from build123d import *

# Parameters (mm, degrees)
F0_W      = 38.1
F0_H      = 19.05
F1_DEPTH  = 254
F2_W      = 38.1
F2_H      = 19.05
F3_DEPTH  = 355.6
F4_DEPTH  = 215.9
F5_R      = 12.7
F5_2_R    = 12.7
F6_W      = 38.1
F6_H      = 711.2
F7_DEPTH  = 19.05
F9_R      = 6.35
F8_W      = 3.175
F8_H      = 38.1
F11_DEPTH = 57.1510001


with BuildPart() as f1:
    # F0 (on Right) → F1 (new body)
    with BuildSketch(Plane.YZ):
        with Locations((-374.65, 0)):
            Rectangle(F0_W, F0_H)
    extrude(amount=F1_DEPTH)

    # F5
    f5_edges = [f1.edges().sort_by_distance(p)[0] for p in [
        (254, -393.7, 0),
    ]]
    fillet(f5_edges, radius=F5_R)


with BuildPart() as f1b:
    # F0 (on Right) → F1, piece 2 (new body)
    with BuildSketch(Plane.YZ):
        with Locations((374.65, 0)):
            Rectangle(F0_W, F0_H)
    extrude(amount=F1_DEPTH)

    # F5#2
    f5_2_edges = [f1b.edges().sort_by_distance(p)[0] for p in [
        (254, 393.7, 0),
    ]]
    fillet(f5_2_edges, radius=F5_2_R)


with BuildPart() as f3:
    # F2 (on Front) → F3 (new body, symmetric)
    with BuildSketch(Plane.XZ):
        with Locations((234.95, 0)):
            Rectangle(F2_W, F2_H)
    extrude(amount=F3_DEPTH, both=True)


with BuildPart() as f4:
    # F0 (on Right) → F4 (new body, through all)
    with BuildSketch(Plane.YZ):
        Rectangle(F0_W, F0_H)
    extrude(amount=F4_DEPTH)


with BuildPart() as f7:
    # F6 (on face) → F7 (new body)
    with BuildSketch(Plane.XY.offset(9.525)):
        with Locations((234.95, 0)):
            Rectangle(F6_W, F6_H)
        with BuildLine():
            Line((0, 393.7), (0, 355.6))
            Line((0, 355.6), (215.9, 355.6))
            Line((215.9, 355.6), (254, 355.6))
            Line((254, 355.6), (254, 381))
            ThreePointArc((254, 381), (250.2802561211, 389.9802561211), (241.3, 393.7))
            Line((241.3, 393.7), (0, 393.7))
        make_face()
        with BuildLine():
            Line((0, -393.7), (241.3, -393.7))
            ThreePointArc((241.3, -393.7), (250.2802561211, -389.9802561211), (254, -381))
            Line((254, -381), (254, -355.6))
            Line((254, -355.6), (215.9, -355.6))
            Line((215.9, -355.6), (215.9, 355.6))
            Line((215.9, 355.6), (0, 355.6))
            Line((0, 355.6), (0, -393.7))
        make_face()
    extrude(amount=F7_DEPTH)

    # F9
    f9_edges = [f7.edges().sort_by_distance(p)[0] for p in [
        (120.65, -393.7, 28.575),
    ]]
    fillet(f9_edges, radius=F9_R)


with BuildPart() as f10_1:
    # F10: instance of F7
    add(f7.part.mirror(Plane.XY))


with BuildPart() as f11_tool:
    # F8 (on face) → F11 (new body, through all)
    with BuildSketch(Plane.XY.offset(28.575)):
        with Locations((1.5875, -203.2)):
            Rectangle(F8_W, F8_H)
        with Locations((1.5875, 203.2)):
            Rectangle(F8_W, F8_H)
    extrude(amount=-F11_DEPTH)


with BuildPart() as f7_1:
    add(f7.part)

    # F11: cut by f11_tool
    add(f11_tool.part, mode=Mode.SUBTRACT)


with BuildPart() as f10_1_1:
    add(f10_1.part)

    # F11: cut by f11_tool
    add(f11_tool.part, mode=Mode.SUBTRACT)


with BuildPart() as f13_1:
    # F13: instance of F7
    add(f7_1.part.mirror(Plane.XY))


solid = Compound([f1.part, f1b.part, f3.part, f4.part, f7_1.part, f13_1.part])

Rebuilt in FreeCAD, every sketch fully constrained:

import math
import FreeCAD as App
import Part
import Sketcher
Q = App.Units.Quantity


def edges_at(feature, points):
    """Names of the edges that pass closest to the given points."""
    edges = feature.Shape.Edges
    near = lambda p: min(range(len(edges)), key=lambda i: edges[i].distToShape(Part.Vertex(*p))[0])
    return sorted({f"Edge{near(p) + 1}" for p in points})


def add_polygon(sketch, points):
    """Adds a closed chain of lines whose ends are joined by coincident constraints."""
    first, n = sketch.GeometryCount, len(points)
    for a, b in zip(points, points[1:] + points[:1]):
        sketch.addGeometry(Part.LineSegment(App.Vector(*a, 0), App.Vector(*b, 0)), False)
    for i in range(n):
        sketch.addConstraint(Sketcher.Constraint("Coincident", first + i, 2, first + (i + 1) % n, 1))

doc = App.newDocument("Part")
body = doc.addObject("PartDesign::Body", "Body")

sketch1 = doc.addObject("Sketcher::SketchObject", "Sketch")
body.addObject(sketch1)
sketch1.AttachmentSupport = (doc.YZ_Plane, [""])
sketch1.MapMode = "FlatFace"
add_polygon(sketch1, [(-393.7, 9.525), (-393.7, -9.525), (-355.6, -9.525), (-355.6, 9.525)])
sketch1.addConstraint(Sketcher.Constraint("Vertical", 0))
sketch1.addConstraint(Sketcher.Constraint("Horizontal", 1))
sketch1.addConstraint(Sketcher.Constraint("Vertical", 2))
sketch1.addConstraint(Sketcher.Constraint("Horizontal", 3))
sketch1.addConstraint(Sketcher.Constraint("DistanceX", 1, 1, 1, 2, Q("1.5 in")))
sketch1.addConstraint(Sketcher.Constraint("DistanceX", 1, 2, -1, 1, Q("14 in")))
sketch1.addConstraint(Sketcher.Constraint("DistanceY", 0, 2, 0, 1, Q("0.75 in")))
sketch1.addConstraint(Sketcher.Constraint("DistanceY", 0, 2, -1, 1, Q("0.375 in")))
pad1 = doc.addObject("PartDesign::Pad", "Pad")
body.addObject(pad1)
pad1.Profile = sketch1
pad1.Length = Q("10 in")
doc.recompute()

fillet = doc.addObject("PartDesign::Fillet", "Fillet")
body.addObject(fillet)
fillet.Base = (pad1, edges_at(pad1, [(254, -393.7, 0)]))
fillet.Radius = Q("0.5 in")
body2 = doc.addObject("PartDesign::Body", "Body001")

sketch2 = doc.addObject("Sketcher::SketchObject", "Sketch001")
body2.addObject(sketch2)
sketch2.AttachmentSupport = (doc.getObject("YZ_Plane001"), [""])
sketch2.MapMode = "FlatFace"
add_polygon(sketch2, [(355.6, 9.525), (355.6, -9.525), (393.7, -9.525), (393.7, 9.525)])
sketch2.addConstraint(Sketcher.Constraint("Vertical", 0))
sketch2.addConstraint(Sketcher.Constraint("Horizontal", 1))
sketch2.addConstraint(Sketcher.Constraint("Vertical", 2))
sketch2.addConstraint(Sketcher.Constraint("Horizontal", 3))
sketch2.addConstraint(Sketcher.Constraint("DistanceX", 1, 1, 1, 2, Q("1.5 in")))
sketch2.addConstraint(Sketcher.Constraint("DistanceX", -1, 1, 0, 2, Q("14 in")))
sketch2.addConstraint(Sketcher.Constraint("DistanceY", 0, 2, 0, 1, Q("0.75 in")))
sketch2.addConstraint(Sketcher.Constraint("DistanceY", 0, 2, -1, 1, Q("0.375 in")))
pad2 = doc.addObject("PartDesign::Pad", "Pad001")
body2.addObject(pad2)
pad2.Profile = sketch2
pad2.Length = Q("10 in")
doc.recompute()

fillet2 = doc.addObject("PartDesign::Fillet", "Fillet001")
body2.addObject(fillet2)
fillet2.Base = (pad2, edges_at(pad2, [(254, 393.7, 0)]))
fillet2.Radius = Q("0.5 in")
body3 = doc.addObject("PartDesign::Body", "Body002")

sketch3 = doc.addObject("Sketcher::SketchObject", "Sketch002")
body3.addObject(sketch3)
sketch3.AttachmentSupport = (doc.getObject("XZ_Plane002"), [""])
sketch3.MapMode = "FlatFace"
add_polygon(sketch3, [(215.9, 9.525), (215.9, -9.525), (254, -9.525), (254, 9.525)])
sketch3.addConstraint(Sketcher.Constraint("Vertical", 0))
sketch3.addConstraint(Sketcher.Constraint("Horizontal", 1))
sketch3.addConstraint(Sketcher.Constraint("Vertical", 2))
sketch3.addConstraint(Sketcher.Constraint("Horizontal", 3))
sketch3.addConstraint(Sketcher.Constraint("DistanceX", 1, 1, 1, 2, Q("1.5 in")))
sketch3.addConstraint(Sketcher.Constraint("DistanceX", -1, 1, 1, 2, Q("10 in")))
sketch3.addConstraint(Sketcher.Constraint("DistanceY", 0, 2, 0, 1, Q("0.75 in")))
sketch3.addConstraint(Sketcher.Constraint("DistanceY", 0, 2, -1, 1, Q("0.375 in")))
pad3 = doc.addObject("PartDesign::Pad", "Pad002")
body3.addObject(pad3)
pad3.Profile = sketch3
pad3.Length = Q("28 in")
pad3.Midplane = True
body4 = doc.addObject("PartDesign::Body", "Body003")

sketch4 = doc.addObject("Sketcher::SketchObject", "Sketch003")
body4.addObject(sketch4)
sketch4.AttachmentSupport = (doc.getObject("YZ_Plane003"), [""])
sketch4.MapMode = "FlatFace"
add_polygon(sketch4, [(-19.05, 9.525), (-19.05, -9.525), (19.05, -9.525), (19.05, 9.525)])
sketch4.addConstraint(Sketcher.Constraint("Vertical", 0))
sketch4.addConstraint(Sketcher.Constraint("Horizontal", 1))
sketch4.addConstraint(Sketcher.Constraint("Vertical", 2))
sketch4.addConstraint(Sketcher.Constraint("Horizontal", 3))
sketch4.addConstraint(Sketcher.Constraint("Symmetric", 0, 2, 2, 2, -1, 1))
sketch4.addConstraint(Sketcher.Constraint("DistanceX", 1, 1, 1, 2, Q("1.5 in")))
sketch4.addConstraint(Sketcher.Constraint("DistanceY", 0, 2, 0, 1, Q("0.75 in")))
pad4 = doc.addObject("PartDesign::Pad", "Pad003")
body4.addObject(pad4)
pad4.Profile = sketch4
pad4.Length = Q("8.5 in")
body5 = doc.addObject("PartDesign::Body", "Body004")

sketch5 = doc.addObject("Sketcher::SketchObject", "Sketch004")
body5.addObject(sketch5)
sketch5.AttachmentSupport = (doc.getObject("XY_Plane004"), [""])
sketch5.MapMode = "FlatFace"
sketch5.AttachmentOffset = App.Placement(App.Vector(0, 0, 0.375 * 25.4), App.Rotation())
sketch5.addGeometry(Part.ArcOfCircle(Part.Circle(App.Vector(241.3, 381, 0), App.Vector(0, 0, 1), 12.7), math.radians(0), math.radians(90)), False)
sketch5.addGeometry(Part.LineSegment(App.Vector(241.3, 393.7, 0), App.Vector(0, 393.7, 0)), False)
sketch5.addGeometry(Part.LineSegment(App.Vector(0, 393.7, 0), App.Vector(0, -393.7, 0)), False)
sketch5.addGeometry(Part.LineSegment(App.Vector(0, -393.7, 0), App.Vector(241.3, -393.7, 0)), False)
sketch5.addGeometry(Part.ArcOfCircle(Part.Circle(App.Vector(241.3, -381, 0), App.Vector(0, 0, 1), 12.7), math.radians(-90), math.radians(0)), False)
sketch5.addGeometry(Part.LineSegment(App.Vector(254, -381, 0), App.Vector(254, 381, 0)), False)
sketch5.addConstraint(Sketcher.Constraint("Tangent", 0, 2, 1, 1))
sketch5.addConstraint(Sketcher.Constraint("Coincident", 1, 2, 2, 1))
sketch5.addConstraint(Sketcher.Constraint("Coincident", 2, 2, 3, 1))
sketch5.addConstraint(Sketcher.Constraint("Tangent", 3, 2, 4, 1))
sketch5.addConstraint(Sketcher.Constraint("Tangent", 4, 2, 5, 1))
sketch5.addConstraint(Sketcher.Constraint("Tangent", 5, 2, 0, 1))
sketch5.addConstraint(Sketcher.Constraint("Horizontal", 1))
sketch5.addConstraint(Sketcher.Constraint("Vertical", 2))
sketch5.addConstraint(Sketcher.Constraint("Horizontal", 3))
sketch5.addConstraint(Sketcher.Constraint("Vertical", 5))
sketch5.addConstraint(Sketcher.Constraint("Equal", 0, 4))
sketch5.addConstraint(Sketcher.Constraint("Symmetric", 1, 2, 2, 2, -1, 1))
sketch5.addConstraint(Sketcher.Constraint("Radius", 0, Q("0.5 in")))
sketch5.addConstraint(Sketcher.Constraint("DistanceY", 2, 2, 2, 1, Q("31 in")))
sketch5.addConstraint(Sketcher.Constraint("DistanceX", 1, 2, 1, 1, Q("9.5 in")))
pad5 = doc.addObject("PartDesign::Pad", "Pad004")
body5.addObject(pad5)
pad5.Profile = sketch5
pad5.Length = Q("0.75 in")
doc.recompute()

fillet3 = doc.addObject("PartDesign::Fillet", "Fillet002")
body5.addObject(fillet3)
fillet3.Base = (pad5, edges_at(pad5, [(120.65, -393.7, 28.575)]))
fillet3.Radius = Q("0.25 in")
body6 = doc.addObject("PartDesign::Body", "Body005")
doc.recompute()

mirroring = doc.addObject("Part::Mirroring", "Mirroring")
mirroring.Source = body5
mirroring.Base = App.Vector(0, 0, 0)
mirroring.Normal = App.Vector(0, 0, 1)
body6.BaseFeature = mirroring
doc.recompute()
body7 = doc.addObject("PartDesign::Body", "Body006")
body7.AllowCompound = True

sketch6 = doc.addObject("Sketcher::SketchObject", "Sketch005")
body7.addObject(sketch6)
sketch6.AttachmentSupport = (doc.getObject("XY_Plane006"), [""])
sketch6.MapMode = "FlatFace"
sketch6.AttachmentOffset = App.Placement(App.Vector(0, 0, 1.125 * 25.4), App.Rotation())
add_polygon(sketch6, [(0, -184.15), (0, -222.25), (3.175, -222.25), (3.175, -184.15)])
add_polygon(sketch6, [(0, 222.25), (0, 184.15), (3.175, 184.15), (3.175, 222.25)])
sketch6.addConstraint(Sketcher.Constraint("Vertical", 0))
sketch6.addConstraint(Sketcher.Constraint("Horizontal", 1))
sketch6.addConstraint(Sketcher.Constraint("Vertical", 2))
sketch6.addConstraint(Sketcher.Constraint("Horizontal", 3))
sketch6.addConstraint(Sketcher.Constraint("Vertical", 4))
sketch6.addConstraint(Sketcher.Constraint("Horizontal", 5))
sketch6.addConstraint(Sketcher.Constraint("Vertical", 6))
sketch6.addConstraint(Sketcher.Constraint("Horizontal", 7))
sketch6.addConstraint(Sketcher.Constraint("Symmetric", 3, 2, 4, 2, -1, 1))
sketch6.addConstraint(Sketcher.Constraint("Symmetric", 1, 2, 6, 2, -1))
sketch6.addConstraint(Sketcher.Constraint("PointOnObject", 0, 2, -2))
sketch6.addConstraint(Sketcher.Constraint("DistanceY", 0, 2, 0, 1, Q("1.5 in")))
sketch6.addConstraint(Sketcher.Constraint("DistanceY", 0, 2, 4, 2, Q("16 in")))
sketch6.addConstraint(Sketcher.Constraint("DistanceX", 1, 1, 1, 2, Q("0.125 in")))
pad6 = doc.addObject("PartDesign::Pad", "Pad005")
body7.addObject(pad6)
pad6.Profile = sketch6
pad6.Length = 57.151
pad6.Reversed = True
doc.recompute()

body8 = doc.addObject("PartDesign::Body", "Body007")
body8.BaseFeature = body7
boolean = doc.addObject("PartDesign::Boolean", "Boolean")
body5.addObject(boolean)
boolean.Type = "Cut"
boolean.addObjects([body8])
doc.recompute()

boolean2 = doc.addObject("PartDesign::Boolean", "Boolean001")
body6.addObject(boolean2)
boolean2.Type = "Cut"
boolean2.addObjects([body7])
body9 = doc.addObject("PartDesign::Body", "Body008")
doc.recompute()

mirroring2 = doc.addObject("Part::Mirroring", "Mirroring001")
mirroring2.Source = body5
mirroring2.Base = App.Vector(0, 0, 0)
mirroring2.Normal = App.Vector(0, 0, 1)
body9.BaseFeature = mirroring2
doc.recompute()
body6.Visibility = False
mirroring.Visibility = False
mirroring2.Visibility = False

doc.recompute()
